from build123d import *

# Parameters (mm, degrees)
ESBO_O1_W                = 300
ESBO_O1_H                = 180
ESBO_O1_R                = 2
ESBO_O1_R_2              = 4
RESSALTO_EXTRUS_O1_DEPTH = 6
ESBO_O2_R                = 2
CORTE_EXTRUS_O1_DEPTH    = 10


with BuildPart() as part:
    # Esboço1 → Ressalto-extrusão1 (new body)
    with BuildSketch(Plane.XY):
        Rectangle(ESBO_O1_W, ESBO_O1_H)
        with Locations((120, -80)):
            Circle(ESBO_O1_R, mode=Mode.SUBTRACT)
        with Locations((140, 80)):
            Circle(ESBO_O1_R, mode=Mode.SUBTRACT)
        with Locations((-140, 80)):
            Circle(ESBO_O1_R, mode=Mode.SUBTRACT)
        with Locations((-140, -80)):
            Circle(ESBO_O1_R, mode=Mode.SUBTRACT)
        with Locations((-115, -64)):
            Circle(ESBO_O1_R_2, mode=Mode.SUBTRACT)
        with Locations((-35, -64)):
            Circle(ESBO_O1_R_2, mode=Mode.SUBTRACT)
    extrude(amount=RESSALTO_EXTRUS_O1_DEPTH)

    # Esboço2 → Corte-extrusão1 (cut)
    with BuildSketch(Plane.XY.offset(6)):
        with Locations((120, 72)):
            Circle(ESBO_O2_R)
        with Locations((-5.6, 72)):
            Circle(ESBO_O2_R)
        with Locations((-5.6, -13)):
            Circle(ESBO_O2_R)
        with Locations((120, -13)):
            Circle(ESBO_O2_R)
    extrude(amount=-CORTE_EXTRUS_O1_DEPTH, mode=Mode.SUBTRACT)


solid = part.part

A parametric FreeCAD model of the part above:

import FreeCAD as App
import Part
import Sketcher

V = App.Vector
Q = App.Units.Quantity

doc = App.newDocument("Part")
body = doc.addObject("PartDesign::Body", "Body")

# Sketch on XY plane
sketch1 = doc.addObject("Sketcher::SketchObject", "Sketch")
body.addObject(sketch1)
sketch1.AttachmentSupport = (doc.XY_Plane, [""])
sketch1.MapMode = "FlatFace"
sketch1.addGeometry([
    Part.LineSegment(V(-150, 90, 0), V(-150, -90, 0)),  # 0
    Part.LineSegment(V(-150, -90, 0), V(150, -90, 0)),  # 1
    Part.LineSegment(V(150, -90, 0), V(150, 90, 0)),  # 2
    Part.LineSegment(V(150, 90, 0), V(-150, 90, 0)),  # 3
    Part.Circle(V(-140, -80, 0), V(0, 0, 1), 2),  # 4
    Part.Circle(V(-115, -64, 0), V(0, 0, 1), 4),  # 5
    Part.Circle(V(-35, -64, 0), V(0, 0, 1), 4),  # 6
    Part.Circle(V(120, -80, 0), V(0, 0, 1), 2),  # 7
    Part.Circle(V(-140, 80, 0), V(0, 0, 1), 2),  # 8
    Part.Circle(V(140, 80, 0), V(0, 0, 1), 2),  # 9
], False)
sketch1.addConstraint([
    Sketcher.Constraint("Coincident", 0, 2, 1, 1),
    Sketcher.Constraint("Coincident", 1, 2, 2, 1),
    Sketcher.Constraint("Coincident", 2, 2, 3, 1),
    Sketcher.Constraint("Coincident", 3, 2, 0, 1),
    Sketcher.Constraint("Vertical", 0),
    Sketcher.Constraint("Horizontal", 1),
    Sketcher.Constraint("Vertical", 2),
    Sketcher.Constraint("Horizontal", 3),
    Sketcher.Constraint("Equal", 5, 6),
    Sketcher.Constraint("Equal", 4, 7),
    Sketcher.Constraint("Equal", 7, 8),
    Sketcher.Constraint("Equal", 8, 9),
    Sketcher.Constraint("Symmetric", 4, 3, 9, 3, -1, 1),
    Sketcher.Constraint("Symmetric", 0, 2, 2, 2, -1, 1),
    Sketcher.Constraint("Symmetric", 8, 3, 9, 3, -2),
    Sketcher.Constraint("Horizontal", 5, 3, 6, 3),
    Sketcher.Constraint("Horizontal", 4, 3, 7, 3),
    Sketcher.Constraint("Diameter", 4, Q("4 mm")),
    Sketcher.Constraint("Diameter", 5, Q("8 mm")),
    Sketcher.Constraint("DistanceX", 1, 1, 1, 2, Q("300 mm")),
    Sketcher.Constraint("DistanceY", 0, 2, 0, 1, Q("180 mm")),
    Sketcher.Constraint("DistanceX", 4, 3, -1, 1, Q("140 mm")),
    Sketcher.Constraint("DistanceY", 4, 3, -1, 1, Q("80 mm")),
    Sketcher.Constraint("DistanceX", 5, 3, -1, 1, Q("115 mm")),
    Sketcher.Constraint("DistanceY", 5, 3, -1, 1, Q("64 mm")),
    Sketcher.Constraint("DistanceX", 6, 3, -1, 1, Q("35 mm")),
    Sketcher.Constraint("DistanceX", -1, 1, 7, 3, Q("120 mm")),
])
pad1 = doc.addObject("PartDesign::Pad", "Pad")
body.addObject(pad1)
pad1.Profile = sketch1
pad1.Length = 6

# Sketch on XY plane
sketch2 = doc.addObject("Sketcher::SketchObject", "Sketch001")
body.addObject(sketch2)
sketch2.AttachmentSupport = (doc.XY_Plane, [""])
sketch2.MapMode = "FlatFace"
sketch2.AttachmentOffset = App.Placement(V(0, 0, 6), App.Rotation())
sketch2.addGeometry([
    Part.Circle(V(120, 72, 0), V(0, 0, 1), 2),
    Part.Circle(V(-5.6, 72, 0), V(0, 0, 1), 2),
    Part.Circle(V(-5.6, -13, 0), V(0, 0, 1), 2),
    Part.Circle(V(120, -13, 0), V(0, 0, 1), 2),
], False)
sketch2.addConstraint([
    Sketcher.Constraint("Equal", 0, 1),
    Sketcher.Constraint("Equal", 1, 2),
    Sketcher.Constraint("Equal", 2, 3),
    Sketcher.Constraint("Horizontal", 0, 3, 1, 3),
    Sketcher.Constraint("Horizontal", 2, 3, 3, 3),
    Sketcher.Constraint("Vertical", 1, 3, 2, 3),
    Sketcher.Constraint("Vertical", 0, 3, 3, 3),
    Sketcher.Constraint("Diameter", 0, Q("4 mm")),
    Sketcher.Constraint("DistanceX", -1, 1, 0, 3, Q("120 mm")),
    Sketcher.Constraint("DistanceY", -1, 1, 0, 3, Q("72 mm")),
    Sketcher.Constraint("DistanceY", 2, 3, -1, 1, Q("13 mm")),
    Sketcher.Constraint("DistanceX", 1, 3, -1, 1, Q("5.6 mm")),
])
pocket1 = doc.addObject("PartDesign::Pocket", "Pocket")
body.addObject(pocket1)
pocket1.Profile = sketch2
pocket1.Length = 10

doc.recompute()
